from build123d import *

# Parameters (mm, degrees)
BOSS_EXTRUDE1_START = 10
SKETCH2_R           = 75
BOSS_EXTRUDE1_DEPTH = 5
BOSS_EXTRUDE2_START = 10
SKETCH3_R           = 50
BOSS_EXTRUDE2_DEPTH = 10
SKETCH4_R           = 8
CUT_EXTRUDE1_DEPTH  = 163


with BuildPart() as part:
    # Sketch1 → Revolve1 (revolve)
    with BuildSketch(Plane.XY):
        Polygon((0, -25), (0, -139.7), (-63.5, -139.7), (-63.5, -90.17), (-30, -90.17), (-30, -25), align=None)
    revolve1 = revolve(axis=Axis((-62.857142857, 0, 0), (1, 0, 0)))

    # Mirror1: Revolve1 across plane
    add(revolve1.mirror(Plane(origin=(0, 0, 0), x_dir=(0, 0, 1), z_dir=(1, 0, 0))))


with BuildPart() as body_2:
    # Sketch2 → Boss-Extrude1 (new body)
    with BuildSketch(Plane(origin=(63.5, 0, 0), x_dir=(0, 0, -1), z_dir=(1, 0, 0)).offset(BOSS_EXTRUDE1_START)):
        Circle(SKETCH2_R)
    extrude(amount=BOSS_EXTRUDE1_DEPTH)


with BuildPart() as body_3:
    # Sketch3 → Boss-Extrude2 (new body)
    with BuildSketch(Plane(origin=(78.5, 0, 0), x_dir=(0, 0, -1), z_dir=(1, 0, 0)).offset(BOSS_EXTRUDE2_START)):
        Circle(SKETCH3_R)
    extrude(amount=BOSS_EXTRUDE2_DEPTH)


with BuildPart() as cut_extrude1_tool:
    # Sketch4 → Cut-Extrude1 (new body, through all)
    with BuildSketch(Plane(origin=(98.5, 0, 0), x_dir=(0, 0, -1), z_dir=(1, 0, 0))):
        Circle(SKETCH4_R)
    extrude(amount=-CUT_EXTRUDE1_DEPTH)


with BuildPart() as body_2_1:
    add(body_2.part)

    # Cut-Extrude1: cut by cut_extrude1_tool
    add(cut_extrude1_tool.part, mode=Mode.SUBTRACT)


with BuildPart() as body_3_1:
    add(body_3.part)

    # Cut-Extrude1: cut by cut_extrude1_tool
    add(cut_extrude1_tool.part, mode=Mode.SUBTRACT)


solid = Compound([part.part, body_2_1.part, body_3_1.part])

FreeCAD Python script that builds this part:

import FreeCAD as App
import Part
import Sketcher
from FreeCAD import Vector
Q = App.Units.Quantity


def add_polygon(sketch, points):
    """Adds a closed chain of lines whose ends are joined by coincident constraints."""
    first, n = sketch.GeometryCount, len(points)
    for a, b in zip(points, points[1:] + points[:1]):
        sketch.addGeometry(Part.LineSegment(App.Vector(*a, 0), App.Vector(*b, 0)), False)
    for i in range(n):
        sketch.addConstraint(Sketcher.Constraint("Coincident", first + i, 2, first + (i + 1) % n, 1))

doc = App.newDocument("Part")
params = doc.addObject("Spreadsheet::Sheet", "Params")
for row, (alias, value) in enumerate([
    ("sketch1_width", "30 mm"),
    ("sketch1_width2", "33.5 mm"),
    ("sketch1_height", "114.7 mm"),
    ("sketch1_height2", "65.17 mm"),
    ("revolution_angle", "360 deg"),
    ("sketch2_diameter", "150 mm"),
    ("pad1_length", "5 mm"),
    ("sketch3_diameter", "100 mm"),
    ("pad2_length", "10 mm"),
    ("sketch4_diameter", "16 mm"),
    ("pad3_length", "163 mm"),
], start=1):
    params.set(f"A{row}", alias)
    params.set(f"B{row}", "=" + value)
    params.setAlias(f"B{row}", alias)

body = doc.addObject("PartDesign::Body", "Body")

# Sketch on XY plane
sketch1 = body.newObject("Sketcher::SketchObject", "Sketch")
sketch1.AttachmentSupport = (doc.getObject("XY_Plane"), [""])
sketch1.MapMode = "FlatFace"
add_polygon(sketch1, [(0, -140), (0, -25), (-30, -25), (-30, -90), (-64, -90), (-64, -140)])  # lines 0-5
sketch1.addConstraint([
    Sketcher.Constraint("Vertical", 0),
    Sketcher.Constraint("Horizontal", 1),
    Sketcher.Constraint("Vertical", 2),
    Sketcher.Constraint("Horizontal", 3),
    Sketcher.Constraint("Vertical", 4),
    Sketcher.Constraint("Horizontal", 5),
    Sketcher.Constraint("PointOnObject", 0, 2, -2),
    Sketcher.Constraint("DistanceX", 1, 2, 1, 1, Q("30 mm")),
    Sketcher.Constraint("DistanceX", 3, 2, 3, 1, Q("33.5 mm")),
    Sketcher.Constraint("DistanceY", 0, 1, 0, 2, Q("114.7 mm")),
    Sketcher.Constraint("DistanceY", 0, 2, -1, 1, Q("25 mm")),
    Sketcher.Constraint("DistanceY", 2, 2, 2, 1, Q("65.17 mm")),
])
sketch1.setExpression("Constraints[13]", "Params.sketch1_width")
sketch1.setExpression("Constraints[14]", "Params.sketch1_width2")
sketch1.setExpression("Constraints[15]", "Params.sketch1_height")
sketch1.setExpression("Constraints[17]", "Params.sketch1_height2")
revolution = body.newObject("PartDesign::Revolution", "Revolution")
revolution.Profile = sketch1
revolution.ReferenceAxis = (sketch1, ["H_Axis"])
revolution.setExpression("Angle", "Params.revolution_angle")
doc.recompute()

mirrored = body.newObject("PartDesign::Mirrored", "Mirrored")
mirrored.Originals = [revolution]
mirrored.MirrorPlane = (doc.getObject("YZ_Plane"), [""])
body.Tip = mirrored
body2 = doc.addObject("PartDesign::Body", "Body001")

# Sketch on YZ plane
sketch2 = body2.newObject("Sketcher::SketchObject", "Sketch001")
sketch2.AttachmentSupport = (doc.getObject("YZ_Plane001"), [""])
sketch2.MapMode = "FlatFace"
sketch2.AttachmentOffset = App.Placement(Vector(0, 0, 73.5), App.Rotation())
sketch2.addGeometry(Part.Circle(Vector(0, 0, 0), Vector(0, 0, 1), 75), False)
sketch2.addConstraint([
    Sketcher.Constraint("Coincident", 0, 3, -1, 1),
    Sketcher.Constraint("Diameter", 0, Q("150 mm")),
])
sketch2.setExpression("Constraints[1]", "Params.sketch2_diameter")
pad1 = body2.newObject("PartDesign::Pad", "Pad")
pad1.Profile = sketch2
pad1.setExpression("Length", "Params.pad1_length")
body3 = doc.addObject("PartDesign::Body", "Body002")

# Sketch on YZ plane
sketch3 = body3.newObject("Sketcher::SketchObject", "Sketch002")
sketch3.AttachmentSupport = (doc.getObject("YZ_Plane002"), [""])
sketch3.MapMode = "FlatFace"
sketch3.AttachmentOffset = App.Placement(Vector(0, 0, 88.5), App.Rotation())
sketch3.addGeometry(Part.Circle(Vector(0, 0, 0), Vector(0, 0, 1), 50), False)
sketch3.addConstraint([
    Sketcher.Constraint("Coincident", 0, 3, -1, 1),
    Sketcher.Constraint("Diameter", 0, Q("100 mm")),
])
sketch3.setExpression("Constraints[1]", "Params.sketch3_diameter")
pad2 = body3.newObject("PartDesign::Pad", "Pad001")
pad2.Profile = sketch3
pad2.setExpression("Length", "Params.pad2_length")
body4 = doc.addObject("PartDesign::Body", "Body003")

# Sketch on YZ plane
sketch4 = body4.newObject("Sketcher::SketchObject", "Sketch003")
sketch4.AttachmentSupport = (doc.getObject("YZ_Plane003"), [""])
sketch4.MapMode = "FlatFace"
sketch4.AttachmentOffset = App.Placement(Vector(0, 0, 98.5), App.Rotation())
sketch4.addGeometry(Part.Circle(Vector(0, 0, 0), Vector(0, 0, 1), 8), False)
sketch4.addConstraint([
    Sketcher.Constraint("Coincident", 0, 3, -1, 1),
    Sketcher.Constraint("Diameter", 0, Q("16 mm")),
])
sketch4.setExpression("Constraints[1]", "Params.sketch4_diameter")
pad3 = body4.newObject("PartDesign::Pad", "Pad002")
pad3.Profile = sketch4
pad3.setExpression("Length", "Params.pad3_length")
pad3.Reversed = True
doc.recompute()

body5 = doc.addObject("PartDesign::Body", "Body004")
body5.BaseFeature = body4
boolean = body2.newObject("PartDesign::Boolean", "Boolean")
boolean.Type = "Cut"
boolean.addObjects([body5])
doc.recompute()

boolean2 = body3.newObject("PartDesign::Boolean", "Boolean001")
boolean2.Type = "Cut"
boolean2.addObjects([body4])

doc.recompute()
